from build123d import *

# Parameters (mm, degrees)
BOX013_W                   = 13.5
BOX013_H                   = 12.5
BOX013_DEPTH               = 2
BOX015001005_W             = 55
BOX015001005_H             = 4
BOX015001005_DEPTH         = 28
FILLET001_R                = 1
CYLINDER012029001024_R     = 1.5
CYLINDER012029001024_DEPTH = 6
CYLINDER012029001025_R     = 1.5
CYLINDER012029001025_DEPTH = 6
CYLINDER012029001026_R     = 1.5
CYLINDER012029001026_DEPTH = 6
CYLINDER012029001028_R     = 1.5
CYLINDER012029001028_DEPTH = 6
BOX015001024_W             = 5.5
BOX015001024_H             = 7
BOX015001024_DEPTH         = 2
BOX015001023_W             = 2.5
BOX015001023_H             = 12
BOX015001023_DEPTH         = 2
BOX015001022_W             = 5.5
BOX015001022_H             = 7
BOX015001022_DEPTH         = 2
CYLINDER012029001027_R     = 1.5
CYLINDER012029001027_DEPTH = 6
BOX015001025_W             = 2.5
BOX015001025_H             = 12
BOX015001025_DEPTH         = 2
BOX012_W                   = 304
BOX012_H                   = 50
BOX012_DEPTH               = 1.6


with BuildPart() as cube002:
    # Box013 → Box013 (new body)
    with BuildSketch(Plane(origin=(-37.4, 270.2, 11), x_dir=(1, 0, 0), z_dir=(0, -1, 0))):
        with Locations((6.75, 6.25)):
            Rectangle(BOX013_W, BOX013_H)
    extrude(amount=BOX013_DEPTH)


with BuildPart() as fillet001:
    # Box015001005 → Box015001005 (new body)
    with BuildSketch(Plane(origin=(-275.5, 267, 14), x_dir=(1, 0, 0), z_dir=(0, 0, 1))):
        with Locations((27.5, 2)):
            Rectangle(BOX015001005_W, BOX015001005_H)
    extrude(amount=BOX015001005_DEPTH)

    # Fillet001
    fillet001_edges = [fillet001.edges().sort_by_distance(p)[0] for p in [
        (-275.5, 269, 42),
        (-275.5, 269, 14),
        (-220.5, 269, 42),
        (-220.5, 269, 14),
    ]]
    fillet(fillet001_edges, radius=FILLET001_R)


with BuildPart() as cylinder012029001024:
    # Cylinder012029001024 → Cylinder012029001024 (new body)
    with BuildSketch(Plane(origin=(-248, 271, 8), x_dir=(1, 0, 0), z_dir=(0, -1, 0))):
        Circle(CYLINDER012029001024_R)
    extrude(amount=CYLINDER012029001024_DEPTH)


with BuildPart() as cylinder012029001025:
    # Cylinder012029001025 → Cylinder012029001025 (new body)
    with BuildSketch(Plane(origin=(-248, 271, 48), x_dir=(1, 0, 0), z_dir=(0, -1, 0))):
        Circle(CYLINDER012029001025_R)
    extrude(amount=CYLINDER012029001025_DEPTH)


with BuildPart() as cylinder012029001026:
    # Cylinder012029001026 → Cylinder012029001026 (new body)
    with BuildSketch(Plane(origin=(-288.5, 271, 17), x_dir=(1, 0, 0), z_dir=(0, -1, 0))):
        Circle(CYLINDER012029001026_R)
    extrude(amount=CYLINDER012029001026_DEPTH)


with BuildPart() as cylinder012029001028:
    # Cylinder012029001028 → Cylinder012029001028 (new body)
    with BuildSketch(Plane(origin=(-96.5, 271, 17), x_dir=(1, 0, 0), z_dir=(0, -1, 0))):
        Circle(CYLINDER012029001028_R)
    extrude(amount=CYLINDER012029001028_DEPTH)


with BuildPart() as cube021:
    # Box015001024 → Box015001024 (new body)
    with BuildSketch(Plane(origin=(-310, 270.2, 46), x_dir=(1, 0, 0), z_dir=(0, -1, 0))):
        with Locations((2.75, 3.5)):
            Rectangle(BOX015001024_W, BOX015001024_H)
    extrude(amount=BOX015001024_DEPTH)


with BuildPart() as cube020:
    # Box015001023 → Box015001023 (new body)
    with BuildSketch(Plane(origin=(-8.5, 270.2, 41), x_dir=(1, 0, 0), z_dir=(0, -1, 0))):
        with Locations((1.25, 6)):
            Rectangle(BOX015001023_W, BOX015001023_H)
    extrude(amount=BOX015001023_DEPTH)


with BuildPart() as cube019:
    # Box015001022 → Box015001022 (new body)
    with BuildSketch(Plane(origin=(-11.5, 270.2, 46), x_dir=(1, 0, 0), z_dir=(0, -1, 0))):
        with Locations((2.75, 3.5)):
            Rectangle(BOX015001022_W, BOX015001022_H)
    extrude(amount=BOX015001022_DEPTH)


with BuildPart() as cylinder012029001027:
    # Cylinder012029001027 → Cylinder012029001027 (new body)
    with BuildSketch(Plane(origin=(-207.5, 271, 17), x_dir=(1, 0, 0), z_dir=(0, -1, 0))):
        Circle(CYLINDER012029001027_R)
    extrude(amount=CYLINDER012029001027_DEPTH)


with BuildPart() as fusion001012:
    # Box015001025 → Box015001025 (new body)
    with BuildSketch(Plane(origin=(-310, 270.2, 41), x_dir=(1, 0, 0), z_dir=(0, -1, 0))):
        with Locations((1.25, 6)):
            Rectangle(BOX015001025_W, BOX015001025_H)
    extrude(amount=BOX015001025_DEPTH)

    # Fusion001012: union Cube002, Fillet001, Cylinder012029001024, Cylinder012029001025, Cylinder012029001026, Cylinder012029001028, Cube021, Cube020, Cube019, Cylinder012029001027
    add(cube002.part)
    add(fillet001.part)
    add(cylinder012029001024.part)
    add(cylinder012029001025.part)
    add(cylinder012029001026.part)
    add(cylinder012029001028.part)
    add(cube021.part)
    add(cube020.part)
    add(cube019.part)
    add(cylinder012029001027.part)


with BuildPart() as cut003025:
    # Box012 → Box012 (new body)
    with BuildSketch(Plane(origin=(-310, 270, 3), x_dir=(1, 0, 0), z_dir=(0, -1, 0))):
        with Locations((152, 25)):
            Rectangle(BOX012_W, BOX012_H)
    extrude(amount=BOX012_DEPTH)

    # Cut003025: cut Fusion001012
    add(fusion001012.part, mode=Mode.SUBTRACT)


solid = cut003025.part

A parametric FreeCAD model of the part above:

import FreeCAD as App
import Part
import Sketcher
from FreeCAD import Vector
Q = App.Units.Quantity


def edges_at(feature, points):
    """Names of the edges that pass closest to the given points."""
    edges = feature.Shape.Edges
    near = lambda p: min(range(len(edges)), key=lambda i: edges[i].distToShape(Part.Vertex(*p))[0])
    return sorted({f"Edge{near(p) + 1}" for p in points})

doc = App.newDocument("Part")
body = doc.addObject("PartDesign::Body", "Body")

# Sketch on XZ plane
sketch1 = body.newObject("Sketcher::SketchObject", "Sketch")
sketch1.AttachmentSupport = (doc.getObject("XZ_Plane"), [""])
sketch1.MapMode = "FlatFace"
sketch1.AttachmentOffset = App.Placement(Vector(0, 0, -270.2), App.Rotation())
sketch1.addGeometry(Part.LineSegment(Vector(-37, 24, 0), Vector(-37, 11, 0)), False)
sketch1.addGeometry(Part.LineSegment(Vector(-37, 11, 0), Vector(-24, 11, 0)), False)
sketch1.addGeometry(Part.LineSegment(Vector(-24, 11, 0), Vector(-24, 24, 0)), False)
sketch1.addGeometry(Part.LineSegment(Vector(-24, 24, 0), Vector(-37, 24, 0)), False)
sketch1.addConstraint(Sketcher.Constraint("Coincident", 0, 2, 1, 1))
sketch1.addConstraint(Sketcher.Constraint("Coincident", 1, 2, 2, 1))
sketch1.addConstraint(Sketcher.Constraint("Coincident", 2, 2, 3, 1))
sketch1.addConstraint(Sketcher.Constraint("Coincident", 3, 2, 0, 1))
sketch1.addConstraint(Sketcher.Constraint("Vertical", 0))
sketch1.addConstraint(Sketcher.Constraint("Horizontal", 1))
sketch1.addConstraint(Sketcher.Constraint("Vertical", 2))
sketch1.addConstraint(Sketcher.Constraint("Horizontal", 3))
sketch1.addConstraint(Sketcher.Constraint("DistanceX", 1, 1, 1, 2, Q("13.5 mm")))
sketch1.addConstraint(Sketcher.Constraint("DistanceY", 0, 2, 0, 1, Q("12.5 mm")))
sketch1.addConstraint(Sketcher.Constraint("DistanceY", -1, 1, 0, 2, Q("11 mm")))
sketch1.addConstraint(Sketcher.Constraint("DistanceX", 0, 2, -1, 1, Q("37.4 mm")))
pad1 = body.newObject("PartDesign::Pad", "Pad")
pad1.Profile = sketch1
pad1.Length = 2
body2 = doc.addObject("PartDesign::Body", "Body001")

# Sketch on XY plane
sketch2 = body2.newObject("Sketcher::SketchObject", "Sketch001")
sketch2.AttachmentSupport = (doc.getObject("XY_Plane001"), [""])
sketch2.MapMode = "FlatFace"
sketch2.AttachmentOffset = App.Placement(Vector(0, 0, 14), App.Rotation())
sketch2.addGeometry(Part.LineSegment(Vector(-275.5, 271, 0), Vector(-275.5, 267, 0)), False)
sketch2.addGeometry(Part.LineSegment(Vector(-275.5, 267, 0), Vector(-220.5, 267, 0)), False)
sketch2.addGeometry(Part.LineSegment(Vector(-220.5, 267, 0), Vector(-220.5, 271, 0)), False)
sketch2.addGeometry(Part.LineSegment(Vector(-220.5, 271, 0), Vector(-275.5, 271, 0)), False)
sketch2.addConstraint(Sketcher.Constraint("Coincident", 0, 2, 1, 1))
sketch2.addConstraint(Sketcher.Constraint("Coincident", 1, 2, 2, 1))
sketch2.addConstraint(Sketcher.Constraint("Coincident", 2, 2, 3, 1))
sketch2.addConstraint(Sketcher.Constraint("Coincident", 3, 2, 0, 1))
sketch2.addConstraint(Sketcher.Constraint("Vertical", 0))
sketch2.addConstraint(Sketcher.Constraint("Horizontal", 1))
sketch2.addConstraint(Sketcher.Constraint("Vertical", 2))
sketch2.addConstraint(Sketcher.Constraint("Horizontal", 3))
sketch2.addConstraint(Sketcher.Constraint("DistanceX", 1, 1, 1, 2, Q("55 mm")))
sketch2.addConstraint(Sketcher.Constraint("DistanceY", 0, 2, 0, 1, Q("4 mm")))
sketch2.addConstraint(Sketcher.Constraint("DistanceY", -1, 1, 0, 2, Q("267 mm")))
sketch2.addConstraint(Sketcher.Constraint("DistanceX", 0, 2, -1, 1, Q("275.5 mm")))
pad2 = body2.newObject("PartDesign::Pad", "Pad001")
pad2.Profile = sketch2
pad2.Length = 28
doc.recompute()

fillet = body2.newObject("PartDesign::Fillet", "Fillet")
fillet.Base = (pad2, edges_at(pad2, [
    (-275.5, 269, 42),
    (-275.5, 269, 14),
    (-220.5, 269, 42),
    (-220.5, 269, 14),
]))
fillet.Radius = 1
body3 = doc.addObject("PartDesign::Body", "Body002")

# Sketch on XZ plane
sketch3 = body3.newObject("Sketcher::SketchObject", "Sketch002")
sketch3.AttachmentSupport = (doc.getObject("XZ_Plane002"), [""])
sketch3.MapMode = "FlatFace"
sketch3.AttachmentOffset = App.Placement(Vector(0, 0, -271), App.Rotation())
sketch3.addGeometry(Part.Circle(Vector(-248, 8, 0), Vector(0, 0, 1), 1.5), False)
sketch3.addConstraint(Sketcher.Constraint("Diameter", 0, Q("3 mm")))
sketch3.addConstraint(Sketcher.Constraint("DistanceX", 0, 3, -1, 1, Q("248 mm")))
sketch3.addConstraint(Sketcher.Constraint("DistanceY", -1, 1, 0, 3, Q("8 mm")))
pad3 = body3.newObject("PartDesign::Pad", "Pad002")
pad3.Profile = sketch3
pad3.Length = 6
body4 = doc.addObject("PartDesign::Body", "Body003")

# Sketch on XZ plane
sketch4 = body4.newObject("Sketcher::SketchObject", "Sketch003")
sketch4.AttachmentSupport = (doc.getObject("XZ_Plane003"), [""])
sketch4.MapMode = "FlatFace"
sketch4.AttachmentOffset = App.Placement(Vector(0, 0, -271), App.Rotation())
sketch4.addGeometry(Part.Circle(Vector(-248, 48, 0), Vector(0, 0, 1), 1.5), False)
sketch4.addConstraint(Sketcher.Constraint("Diameter", 0, Q("3 mm")))
sketch4.addConstraint(Sketcher.Constraint("DistanceX", 0, 3, -1, 1, Q("248 mm")))
sketch4.addConstraint(Sketcher.Constraint("DistanceY", -1, 1, 0, 3, Q("48 mm")))
pad4 = body4.newObject("PartDesign::Pad", "Pad003")
pad4.Profile = sketch4
pad4.Length = 6
body5 = doc.addObject("PartDesign::Body", "Body004")

# Sketch on XZ plane
sketch5 = body5.newObject("Sketcher::SketchObject", "Sketch004")
sketch5.AttachmentSupport = (doc.getObject("XZ_Plane004"), [""])
sketch5.MapMode = "FlatFace"
sketch5.AttachmentOffset = App.Placement(Vector(0, 0, -271), App.Rotation())
sketch5.addGeometry(Part.Circle(Vector(-288.5, 17, 0), Vector(0, 0, 1), 1.5), False)
sketch5.addConstraint(Sketcher.Constraint("Diameter", 0, Q("3 mm")))
sketch5.addConstraint(Sketcher.Constraint("DistanceY", -1, 1, 0, 3, Q("17 mm")))
sketch5.addConstraint(Sketcher.Constraint("DistanceX", 0, 3, -1, 1, Q("288.5 mm")))
pad5 = body5.newObject("PartDesign::Pad", "Pad004")
pad5.Profile = sketch5
pad5.Length = 6
body6 = doc.addObject("PartDesign::Body", "Body005")

# Sketch on XZ plane
sketch6 = body6.newObject("Sketcher::SketchObject", "Sketch005")
sketch6.AttachmentSupport = (doc.getObject("XZ_Plane005"), [""])
sketch6.MapMode = "FlatFace"
sketch6.AttachmentOffset = App.Placement(Vector(0, 0, -271), App.Rotation())
sketch6.addGeometry(Part.Circle(Vector(-96.5, 17, 0), Vector(0, 0, 1), 1.5), False)
sketch6.addConstraint(Sketcher.Constraint("Diameter", 0, Q("3 mm")))
sketch6.addConstraint(Sketcher.Constraint("DistanceY", -1, 1, 0, 3, Q("17 mm")))
sketch6.addConstraint(Sketcher.Constraint("DistanceX", 0, 3, -1, 1, Q("96.5 mm")))
pad6 = body6.newObject("PartDesign::Pad", "Pad005")
pad6.Profile = sketch6
pad6.Length = 6
body7 = doc.addObject("PartDesign::Body", "Body006")

# Sketch on XZ plane
sketch7 = body7.newObject("Sketcher::SketchObject", "Sketch006")
sketch7.AttachmentSupport = (doc.getObject("XZ_Plane006"), [""])
sketch7.MapMode = "FlatFace"
sketch7.AttachmentOffset = App.Placement(Vector(0, 0, -270.2), App.Rotation())
sketch7.addGeometry(Part.LineSegment(Vector(-310, 53, 0), Vector(-310, 46, 0)), False)
sketch7.addGeometry(Part.LineSegment(Vector(-310, 46, 0), Vector(-304, 46, 0)), False)
sketch7.addGeometry(Part.LineSegment(Vector(-304, 46, 0), Vector(-304, 53, 0)), False)
sketch7.addGeometry(Part.LineSegment(Vector(-304, 53, 0), Vector(-310, 53, 0)), False)
sketch7.addConstraint(Sketcher.Constraint("Coincident", 0, 2, 1, 1))
sketch7.addConstraint(Sketcher.Constraint("Coincident", 1, 2, 2, 1))
sketch7.addConstraint(Sketcher.Constraint("Coincident", 2, 2, 3, 1))
sketch7.addConstraint(Sketcher.Constraint("Coincident", 3, 2, 0, 1))
sketch7.addConstraint(Sketcher.Constraint("Vertical", 0))
sketch7.addConstraint(Sketcher.Constraint("Horizontal", 1))
sketch7.addConstraint(Sketcher.Constraint("Vertical", 2))
sketch7.addConstraint(Sketcher.Constraint("Horizontal", 3))
sketch7.addConstraint(Sketcher.Constraint("DistanceY", 0, 2, 0, 1, Q("7 mm")))
sketch7.addConstraint(Sketcher.Constraint("DistanceX", 1, 1, 1, 2, Q("5.5 mm")))
sketch7.addConstraint(Sketcher.Constraint("DistanceX", 0, 2, -1, 1, Q("310 mm")))
sketch7.addConstraint(Sketcher.Constraint("DistanceY", -1, 1, 0, 2, Q("46 mm")))
pad7 = body7.newObject("PartDesign::Pad", "Pad006")
pad7.Profile = sketch7
pad7.Length = 2
body8 = doc.addObject("PartDesign::Body", "Body007")

# Sketch on XZ plane
sketch8 = body8.newObject("Sketcher::SketchObject", "Sketch007")
sketch8.AttachmentSupport = (doc.getObject("XZ_Plane007"), [""])
sketch8.MapMode = "FlatFace"
sketch8.AttachmentOffset = App.Placement(Vector(0, 0, -270.2), App.Rotation())
sketch8.addGeometry(Part.LineSegment(Vector(-8.5, 53, 0), Vector(-8.5, 41, 0)), False)
sketch8.addGeometry(Part.LineSegment(Vector(-8.5, 41, 0), Vector(-6, 41, 0)), False)
sketch8.addGeometry(Part.LineSegment(Vector(-6, 41, 0), Vector(-6, 53, 0)), False)
sketch8.addGeometry(Part.LineSegment(Vector(-6, 53, 0), Vector(-8.5, 53, 0)), False)
sketch8.addConstraint(Sketcher.Constraint("Coincident", 0, 2, 1, 1))
sketch8.addConstraint(Sketcher.Constraint("Coincident", 1, 2, 2, 1))
sketch8.addConstraint(Sketcher.Constraint("Coincident", 2, 2, 3, 1))
sketch8.addConstraint(Sketcher.Constraint("Coincident", 3, 2, 0, 1))
sketch8.addConstraint(Sketcher.Constraint("Vertical", 0))
sketch8.addConstraint(Sketcher.Constraint("Horizontal", 1))
sketch8.addConstraint(Sketcher.Constraint("Vertical", 2))
sketch8.addConstraint(Sketcher.Constraint("Horizontal", 3))
sketch8.addConstraint(Sketcher.Constraint("DistanceY", 0, 2, 0, 1, Q("12 mm")))
sketch8.addConstraint(Sketcher.Constraint("DistanceX", 1, 1, 1, 2, Q("2.5 mm")))
sketch8.addConstraint(Sketcher.Constraint("DistanceY", -1, 1, 0, 2, Q("41 mm")))
sketch8.addConstraint(Sketcher.Constraint("DistanceX", 1, 2, -1, 1, Q("6 mm")))
pad8 = body8.newObject("PartDesign::Pad", "Pad007")
pad8.Profile = sketch8
pad8.Length = 2
body9 = doc.addObject("PartDesign::Body", "Body008")

# Sketch on XZ plane
sketch9 = body9.newObject("Sketcher::SketchObject", "Sketch008")
sketch9.AttachmentSupport = (doc.getObject("XZ_Plane008"), [""])
sketch9.MapMode = "FlatFace"
sketch9.AttachmentOffset = App.Placement(Vector(0, 0, -270.2), App.Rotation())
sketch9.addGeometry(Part.LineSegment(Vector(-12, 53, 0), Vector(-12, 46, 0)), False)
sketch9.addGeometry(Part.LineSegment(Vector(-12, 46, 0), Vector(-6, 46, 0)), False)
sketch9.addGeometry(Part.LineSegment(Vector(-6, 46, 0), Vector(-6, 53, 0)), False)
sketch9.addGeometry(Part.LineSegment(Vector(-6, 53, 0), Vector(-12, 53, 0)), False)
sketch9.addConstraint(Sketcher.Constraint("Coincident", 0, 2, 1, 1))
sketch9.addConstraint(Sketcher.Constraint("Coincident", 1, 2, 2, 1))
sketch9.addConstraint(Sketcher.Constraint("Coincident", 2, 2, 3, 1))
sketch9.addConstraint(Sketcher.Constraint("Coincident", 3, 2, 0, 1))
sketch9.addConstraint(Sketcher.Constraint("Vertical", 0))
sketch9.addConstraint(Sketcher.Constraint("Horizontal", 1))
sketch9.addConstraint(Sketcher.Constraint("Vertical", 2))
sketch9.addConstraint(Sketcher.Constraint("Horizontal", 3))
sketch9.addConstraint(Sketcher.Constraint("DistanceY", 0, 2, 0, 1, Q("7 mm")))
sketch9.addConstraint(Sketcher.Constraint("DistanceX", 1, 1, 1, 2, Q("5.5 mm")))
sketch9.addConstraint(Sketcher.Constraint("DistanceY", -1, 1, 0, 2, Q("46 mm")))
sketch9.addConstraint(Sketcher.Constraint("DistanceX", 1, 2, -1, 1, Q("6 mm")))
pad9 = body9.newObject("PartDesign::Pad", "Pad008")
pad9.Profile = sketch9
pad9.Length = 2
body10 = doc.addObject("PartDesign::Body", "Body009")

# Sketch on XZ plane
sketch10 = body10.newObject("Sketcher::SketchObject", "Sketch009")
sketch10.AttachmentSupport = (doc.getObject("XZ_Plane009"), [""])
sketch10.MapMode = "FlatFace"
sketch10.AttachmentOffset = App.Placement(Vector(0, 0, -271), App.Rotation())
sketch10.addGeometry(Part.Circle(Vector(-207.5, 17, 0), Vector(0, 0, 1), 1.5), False)
sketch10.addConstraint(Sketcher.Constraint("Diameter", 0, Q("3 mm")))
sketch10.addConstraint(Sketcher.Constraint("DistanceY", -1, 1, 0, 3, Q("17 mm")))
sketch10.addConstraint(Sketcher.Constraint("DistanceX", 0, 3, -1, 1, Q("207.5 mm")))
pad10 = body10.newObject("PartDesign::Pad", "Pad009")
pad10.Profile = sketch10
pad10.Length = 6
body11 = doc.addObject("PartDesign::Body", "Body010")
body11.AllowCompound = True

# Sketch on XZ plane
sketch11 = body11.newObject("Sketcher::SketchObject", "Sketch010")
sketch11.AttachmentSupport = (doc.getObject("XZ_Plane010"), [""])
sketch11.MapMode = "FlatFace"
sketch11.AttachmentOffset = App.Placement(Vector(0, 0, -270.2), App.Rotation())
sketch11.addGeometry(Part.LineSegment(Vector(-310, 53, 0), Vector(-310, 41, 0)), False)
sketch11.addGeometry(Part.LineSegment(Vector(-310, 41, 0), Vector(-307.5, 41, 0)), False)
sketch11.addGeometry(Part.LineSegment(Vector(-307.5, 41, 0), Vector(-307.5, 53, 0)), False)
sketch11.addGeometry(Part.LineSegment(Vector(-307.5, 53, 0), Vector(-310, 53, 0)), False)
sketch11.addConstraint(Sketcher.Constraint("Coincident", 0, 2, 1, 1))
sketch11.addConstraint(Sketcher.Constraint("Coincident", 1, 2, 2, 1))
sketch11.addConstraint(Sketcher.Constraint("Coincident", 2, 2, 3, 1))
sketch11.addConstraint(Sketcher.Constraint("Coincident", 3, 2, 0, 1))
sketch11.addConstraint(Sketcher.Constraint("Vertical", 0))
sketch11.addConstraint(Sketcher.Constraint("Horizontal", 1))
sketch11.addConstraint(Sketcher.Constraint("Vertical", 2))
sketch11.addConstraint(Sketcher.Constraint("Horizontal", 3))
sketch11.addConstraint(Sketcher.Constraint("DistanceY", 0, 2, 0, 1, Q("12 mm")))
sketch11.addConstraint(Sketcher.Constraint("DistanceX", 1, 1, 1, 2, Q("2.5 mm")))
sketch11.addConstraint(Sketcher.Constraint("DistanceX", 0, 2, -1, 1, Q("310 mm")))
sketch11.addConstraint(Sketcher.Constraint("DistanceY", -1, 1, 0, 2, Q("41 mm")))
pad11 = body11.newObject("PartDesign::Pad", "Pad010")
pad11.Profile = sketch11
pad11.Length = 2
doc.recompute()

boolean = body11.newObject("PartDesign::Boolean", "Boolean")
boolean.Type = "Fuse"
boolean.addObjects([body])
doc.recompute()

boolean2 = body11.newObject("PartDesign::Boolean", "Boolean001")
boolean2.Type = "Fuse"
boolean2.addObjects([body2])
doc.recompute()

boolean3 = body11.newObject("PartDesign::Boolean", "Boolean002")
boolean3.Type = "Fuse"
boolean3.addObjects([body3])
doc.recompute()

boolean4 = body11.newObject("PartDesign::Boolean", "Boolean003")
boolean4.Type = "Fuse"
boolean4.addObjects([body4])
doc.recompute()

boolean5 = body11.newObject("PartDesign::Boolean", "Boolean004")
boolean5.Type = "Fuse"
boolean5.addObjects([body5])
doc.recompute()

boolean6 = body11.newObject("PartDesign::Boolean", "Boolean005")
boolean6.Type = "Fuse"
boolean6.addObjects([body6])
doc.recompute()

boolean7 = body11.newObject("PartDesign::Boolean", "Boolean006")
boolean7.Type = "Fuse"
boolean7.addObjects([body7])
doc.recompute()

boolean8 = body11.newObject("PartDesign::Boolean", "Boolean007")
boolean8.Type = "Fuse"
boolean8.addObjects([body8])
doc.recompute()

boolean9 = body11.newObject("PartDesign::Boolean", "Boolean008")
boolean9.Type = "Fuse"
boolean9.addObjects([body9])
doc.recompute()

boolean10 = body11.newObject("PartDesign::Boolean", "Boolean009")
boolean10.Type = "Fuse"
boolean10.addObjects([body10])
body12 = doc.addObject("PartDesign::Body", "Body011")

# Sketch on XZ plane
sketch12 = body12.newObject("Sketcher::SketchObject", "Sketch011")
sketch12.AttachmentSupport = (doc.getObject("XZ_Plane011"), [""])
sketch12.MapMode = "FlatFace"
sketch12.AttachmentOffset = App.Placement(Vector(0, 0, -270), App.Rotation())
sketch12.addGeometry(Part.LineSegment(Vector(-310, 53, 0), Vector(-310, 3, 0)), False)
sketch12.addGeometry(Part.LineSegment(Vector(-310, 3, 0), Vector(-6, 3, 0)), False)
sketch12.addGeometry(Part.LineSegment(Vector(-6, 3, 0), Vector(-6, 53, 0)), False)
sketch12.addGeometry(Part.LineSegment(Vector(-6, 53, 0), Vector(-310, 53, 0)), False)
sketch12.addConstraint(Sketcher.Constraint("Coincident", 0, 2, 1, 1))
sketch12.addConstraint(Sketcher.Constraint("Coincident", 1, 2, 2, 1))
sketch12.addConstraint(Sketcher.Constraint("Coincident", 2, 2, 3, 1))
sketch12.addConstraint(Sketcher.Constraint("Coincident", 3, 2, 0, 1))
sketch12.addConstraint(Sketcher.Constraint("Vertical", 0))
sketch12.addConstraint(Sketcher.Constraint("Horizontal", 1))
sketch12.addConstraint(Sketcher.Constraint("Vertical", 2))
sketch12.addConstraint(Sketcher.Constraint("Horizontal", 3))
sketch12.addConstraint(Sketcher.Constraint("DistanceX", 1, 1, 1, 2, Q("304 mm")))
sketch12.addConstraint(Sketcher.Constraint("DistanceY", 0, 2, 0, 1, Q("50 mm")))
sketch12.addConstraint(Sketcher.Constraint("DistanceX", 0, 2, -1, 1, Q("310 mm")))
sketch12.addConstraint(Sketcher.Constraint("DistanceY", -1, 1, 0, 2, Q("3 mm")))
pad12 = body12.newObject("PartDesign::Pad", "Pad011")
pad12.Profile = sketch12
pad12.Length = 1.6
doc.recompute()

boolean11 = body12.newObject("PartDesign::Boolean", "Boolean010")
boolean11.Type = "Cut"
boolean11.addObjects([body11])

doc.recompute()
